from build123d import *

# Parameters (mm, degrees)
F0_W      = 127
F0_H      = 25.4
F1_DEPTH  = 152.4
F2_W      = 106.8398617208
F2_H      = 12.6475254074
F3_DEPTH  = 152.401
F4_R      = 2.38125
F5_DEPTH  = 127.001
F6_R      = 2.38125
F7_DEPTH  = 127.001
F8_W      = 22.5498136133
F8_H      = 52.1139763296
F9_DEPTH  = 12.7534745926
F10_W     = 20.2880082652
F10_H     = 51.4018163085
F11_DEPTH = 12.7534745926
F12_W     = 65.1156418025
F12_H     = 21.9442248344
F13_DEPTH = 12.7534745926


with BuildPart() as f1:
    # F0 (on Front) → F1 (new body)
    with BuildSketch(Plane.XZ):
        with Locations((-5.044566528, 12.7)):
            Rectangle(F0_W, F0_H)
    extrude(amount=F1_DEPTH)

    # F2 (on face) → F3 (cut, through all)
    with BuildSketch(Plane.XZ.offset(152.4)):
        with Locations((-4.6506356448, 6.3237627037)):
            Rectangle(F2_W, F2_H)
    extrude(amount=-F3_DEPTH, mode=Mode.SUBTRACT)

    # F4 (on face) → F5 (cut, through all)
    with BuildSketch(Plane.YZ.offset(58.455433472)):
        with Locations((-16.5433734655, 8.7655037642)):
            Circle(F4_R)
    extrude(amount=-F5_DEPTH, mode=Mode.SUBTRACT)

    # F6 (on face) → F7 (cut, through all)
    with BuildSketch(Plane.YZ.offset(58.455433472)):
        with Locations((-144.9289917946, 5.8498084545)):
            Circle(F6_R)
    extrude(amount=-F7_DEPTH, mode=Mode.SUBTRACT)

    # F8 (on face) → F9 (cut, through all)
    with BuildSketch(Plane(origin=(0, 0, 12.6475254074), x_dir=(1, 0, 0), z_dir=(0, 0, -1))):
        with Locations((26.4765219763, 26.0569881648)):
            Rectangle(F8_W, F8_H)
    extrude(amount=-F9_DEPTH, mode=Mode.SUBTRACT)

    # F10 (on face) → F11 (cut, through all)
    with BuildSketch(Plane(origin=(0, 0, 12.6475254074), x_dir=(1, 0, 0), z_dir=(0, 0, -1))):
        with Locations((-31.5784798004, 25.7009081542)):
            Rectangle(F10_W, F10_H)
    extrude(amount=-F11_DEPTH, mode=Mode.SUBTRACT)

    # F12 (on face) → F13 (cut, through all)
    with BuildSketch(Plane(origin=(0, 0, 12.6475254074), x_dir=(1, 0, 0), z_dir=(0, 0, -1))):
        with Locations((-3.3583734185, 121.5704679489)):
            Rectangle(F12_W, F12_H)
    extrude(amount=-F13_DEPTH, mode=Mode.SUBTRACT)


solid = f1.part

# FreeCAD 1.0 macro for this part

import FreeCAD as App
import Part
import Sketcher
from FreeCAD import Vector
Q = App.Units.Quantity


def add_polygon(sketch, points):
    """Adds a closed chain of lines whose ends are joined by coincident constraints."""
    first, n = sketch.GeometryCount, len(points)
    for a, b in zip(points, points[1:] + points[:1]):
        sketch.addGeometry(Part.LineSegment(App.Vector(*a, 0), App.Vector(*b, 0)), False)
    for i in range(n):
        sketch.addConstraint(Sketcher.Constraint("Coincident", first + i, 2, first + (i + 1) % n, 1))

doc = App.newDocument("Part")
body = doc.addObject("PartDesign::Body", "Body")

# Sketch on XZ plane
sketch1 = doc.addObject("Sketcher::SketchObject", "Sketch")
body.addObject(sketch1)
sketch1.AttachmentSupport = (doc.XZ_Plane, [""])
sketch1.MapMode = "FlatFace"
add_polygon(sketch1, [(-68.544567, 25.4), (-68.544567, 0), (58.455433, 0), (58.455433, 25.4)])  # lines 0-3
sketch1.addConstraint([
    Sketcher.Constraint("Vertical", 0),
    Sketcher.Constraint("Horizontal", 1),
    Sketcher.Constraint("Vertical", 2),
    Sketcher.Constraint("Horizontal", 3),
    Sketcher.Constraint("PointOnObject", 0, 2, -1),
    Sketcher.Constraint("DistanceX", 1, 1, 1, 2, Q("5 in")),
    Sketcher.Constraint("DistanceY", 0, 2, 0, 1, Q("1 in")),
    Sketcher.Constraint("DistanceX", 0, 2, -1, 1, 68.544567),
])
pad1 = doc.addObject("PartDesign::Pad", "Pad")
body.addObject(pad1)
pad1.Profile = sketch1
pad1.Length = Q("6 in")

# Sketch on XZ plane
sketch2 = doc.addObject("Sketcher::SketchObject", "Sketch001")
body.addObject(sketch2)
sketch2.AttachmentSupport = (doc.XZ_Plane, [""])
sketch2.MapMode = "FlatFace"
sketch2.AttachmentOffset = App.Placement(Vector(0, 0, 6 * 25.4), App.Rotation())
add_polygon(sketch2, [(-58.070567, 12.647525), (-58.070567, 0), (48.769295, 0), (48.769295, 12.647525)])  # lines 0-3
sketch2.addConstraint([
    Sketcher.Constraint("Vertical", 0),
    Sketcher.Constraint("Horizontal", 1),
    Sketcher.Constraint("Vertical", 2),
    Sketcher.Constraint("Horizontal", 3),
    Sketcher.Constraint("PointOnObject", 0, 2, -1),
    Sketcher.Constraint("DistanceX", 1, 1, 1, 2, 106.839862),
    Sketcher.Constraint("DistanceY", 0, 2, 0, 1, 12.647525),
    Sketcher.Constraint("DistanceX", 0, 2, -1, 1, 58.070567),
])
pocket1 = doc.addObject("PartDesign::Pocket", "Pocket")
body.addObject(pocket1)
pocket1.Profile = sketch2
pocket1.Type = "ThroughAll"

# Sketch on YZ plane
sketch3 = doc.addObject("Sketcher::SketchObject", "Sketch002")
body.addObject(sketch3)
sketch3.AttachmentSupport = (doc.YZ_Plane, [""])
sketch3.MapMode = "FlatFace"
sketch3.AttachmentOffset = App.Placement(Vector(0, 0, 58.455433), App.Rotation())
sketch3.addGeometry(Part.Circle(Vector(-16.543373, 8.765504, 0), Vector(0, 0, 1), 2.38125), False)
sketch3.addConstraint([
    Sketcher.Constraint("Diameter", 0, Q("0.1875 in")),
    Sketcher.Constraint("DistanceX", 0, 3, -1, 1, 16.543373),
    Sketcher.Constraint("DistanceY", -1, 1, 0, 3, 8.765504),
])
pocket2 = doc.addObject("PartDesign::Pocket", "Pocket001")
body.addObject(pocket2)
pocket2.Profile = sketch3
pocket2.Type = "ThroughAll"

# Sketch on YZ plane
sketch4 = doc.addObject("Sketcher::SketchObject", "Sketch003")
body.addObject(sketch4)
sketch4.AttachmentSupport = (doc.YZ_Plane, [""])
sketch4.MapMode = "FlatFace"
sketch4.AttachmentOffset = App.Placement(Vector(0, 0, 58.455433), App.Rotation())
sketch4.addGeometry(Part.Circle(Vector(-144.928992, 5.849808, 0), Vector(0, 0, 1), 2.38125), False)
sketch4.addConstraint([
    Sketcher.Constraint("Diameter", 0, Q("0.1875 in")),
    Sketcher.Constraint("DistanceX", 0, 3, -1, 1, 144.928992),
    Sketcher.Constraint("DistanceY", -1, 1, 0, 3, 5.849808),
])
pocket3 = doc.addObject("PartDesign::Pocket", "Pocket002")
body.addObject(pocket3)
pocket3.Profile = sketch4
pocket3.Type = "ThroughAll"

# Sketch on XY plane
sketch5 = doc.addObject("Sketcher::SketchObject", "Sketch004")
body.addObject(sketch5)
sketch5.AttachmentSupport = (doc.XY_Plane, [""])
sketch5.MapMode = "FlatFace"
sketch5.AttachmentOffset = App.Placement(Vector(0, 0, 12.647525), App.Rotation())
add_polygon(sketch5, [(15.201615, -52.113976), (15.201615, 0), (37.751429, 0), (37.751429, -52.113976)])  # lines 0-3
sketch5.addConstraint([
    Sketcher.Constraint("Vertical", 0),
    Sketcher.Constraint("Horizontal", 1),
    Sketcher.Constraint("Vertical", 2),
    Sketcher.Constraint("Horizontal", 3),
    Sketcher.Constraint("PointOnObject", 0, 2, -1),
    Sketcher.Constraint("DistanceX", 1, 1, 1, 2, 22.549814),
    Sketcher.Constraint("DistanceY", 0, 1, 0, 2, 52.113976),
    Sketcher.Constraint("DistanceX", -1, 1, 1, 2, 37.751429),
])
pocket4 = doc.addObject("PartDesign::Pocket", "Pocket003")
body.addObject(pocket4)
pocket4.Profile = sketch5
pocket4.Type = "ThroughAll"
pocket4.Reversed = True

# Sketch on XY plane
sketch6 = doc.addObject("Sketcher::SketchObject", "Sketch005")
body.addObject(sketch6)
sketch6.AttachmentSupport = (doc.XY_Plane, [""])
sketch6.MapMode = "FlatFace"
sketch6.AttachmentOffset = App.Placement(Vector(0, 0, 12.647525), App.Rotation())
add_polygon(sketch6, [(-41.722484, -51.401816), (-41.722484, 0), (-21.434476, 0), (-21.434476, -51.401816)])  # lines 0-3
sketch6.addConstraint([
    Sketcher.Constraint("Vertical", 0),
    Sketcher.Constraint("Horizontal", 1),
    Sketcher.Constraint("Vertical", 2),
    Sketcher.Constraint("Horizontal", 3),
    Sketcher.Constraint("PointOnObject", 0, 2, -1),
    Sketcher.Constraint("DistanceX", 1, 1, 1, 2, 20.288008),
    Sketcher.Constraint("DistanceY", 0, 1, 0, 2, 51.401816),
    Sketcher.Constraint("DistanceX", 0, 2, -1, 1, 41.722484),
])
pocket5 = doc.addObject("PartDesign::Pocket", "Pocket004")
body.addObject(pocket5)
pocket5.Profile = sketch6
pocket5.Type = "ThroughAll"
pocket5.Reversed = True

# Sketch on XY plane
sketch7 = doc.addObject("Sketcher::SketchObject", "Sketch006")
body.addObject(sketch7)
sketch7.AttachmentSupport = (doc.XY_Plane, [""])
sketch7.MapMode = "FlatFace"
sketch7.AttachmentOffset = App.Placement(Vector(0, 0, 12.647525), App.Rotation())
add_polygon(sketch7, [(-35.916194, -132.54258), (-35.916194, -110.598356), (29.199447, -110.598356), (29.199447, -132.54258)])  # lines 0-3
sketch7.addConstraint([
    Sketcher.Constraint("Vertical", 0),
    Sketcher.Constraint("Horizontal", 1),
    Sketcher.Constraint("Vertical", 2),
    Sketcher.Constraint("Horizontal", 3),
    Sketcher.Constraint("DistanceX", 1, 1, 1, 2, 65.115642),
    Sketcher.Constraint("DistanceY", 0, 1, 0, 2, 21.944225),
    Sketcher.Constraint("DistanceY", 2, 2, -1, 1, 132.54258),
    Sketcher.Constraint("DistanceX", 0, 2, -1, 1, 35.916194),
])
pocket6 = doc.addObject("PartDesign::Pocket", "Pocket005")
body.addObject(pocket6)
pocket6.Profile = sketch7
pocket6.Type = "ThroughAll"
pocket6.Reversed = True

doc.recompute()
